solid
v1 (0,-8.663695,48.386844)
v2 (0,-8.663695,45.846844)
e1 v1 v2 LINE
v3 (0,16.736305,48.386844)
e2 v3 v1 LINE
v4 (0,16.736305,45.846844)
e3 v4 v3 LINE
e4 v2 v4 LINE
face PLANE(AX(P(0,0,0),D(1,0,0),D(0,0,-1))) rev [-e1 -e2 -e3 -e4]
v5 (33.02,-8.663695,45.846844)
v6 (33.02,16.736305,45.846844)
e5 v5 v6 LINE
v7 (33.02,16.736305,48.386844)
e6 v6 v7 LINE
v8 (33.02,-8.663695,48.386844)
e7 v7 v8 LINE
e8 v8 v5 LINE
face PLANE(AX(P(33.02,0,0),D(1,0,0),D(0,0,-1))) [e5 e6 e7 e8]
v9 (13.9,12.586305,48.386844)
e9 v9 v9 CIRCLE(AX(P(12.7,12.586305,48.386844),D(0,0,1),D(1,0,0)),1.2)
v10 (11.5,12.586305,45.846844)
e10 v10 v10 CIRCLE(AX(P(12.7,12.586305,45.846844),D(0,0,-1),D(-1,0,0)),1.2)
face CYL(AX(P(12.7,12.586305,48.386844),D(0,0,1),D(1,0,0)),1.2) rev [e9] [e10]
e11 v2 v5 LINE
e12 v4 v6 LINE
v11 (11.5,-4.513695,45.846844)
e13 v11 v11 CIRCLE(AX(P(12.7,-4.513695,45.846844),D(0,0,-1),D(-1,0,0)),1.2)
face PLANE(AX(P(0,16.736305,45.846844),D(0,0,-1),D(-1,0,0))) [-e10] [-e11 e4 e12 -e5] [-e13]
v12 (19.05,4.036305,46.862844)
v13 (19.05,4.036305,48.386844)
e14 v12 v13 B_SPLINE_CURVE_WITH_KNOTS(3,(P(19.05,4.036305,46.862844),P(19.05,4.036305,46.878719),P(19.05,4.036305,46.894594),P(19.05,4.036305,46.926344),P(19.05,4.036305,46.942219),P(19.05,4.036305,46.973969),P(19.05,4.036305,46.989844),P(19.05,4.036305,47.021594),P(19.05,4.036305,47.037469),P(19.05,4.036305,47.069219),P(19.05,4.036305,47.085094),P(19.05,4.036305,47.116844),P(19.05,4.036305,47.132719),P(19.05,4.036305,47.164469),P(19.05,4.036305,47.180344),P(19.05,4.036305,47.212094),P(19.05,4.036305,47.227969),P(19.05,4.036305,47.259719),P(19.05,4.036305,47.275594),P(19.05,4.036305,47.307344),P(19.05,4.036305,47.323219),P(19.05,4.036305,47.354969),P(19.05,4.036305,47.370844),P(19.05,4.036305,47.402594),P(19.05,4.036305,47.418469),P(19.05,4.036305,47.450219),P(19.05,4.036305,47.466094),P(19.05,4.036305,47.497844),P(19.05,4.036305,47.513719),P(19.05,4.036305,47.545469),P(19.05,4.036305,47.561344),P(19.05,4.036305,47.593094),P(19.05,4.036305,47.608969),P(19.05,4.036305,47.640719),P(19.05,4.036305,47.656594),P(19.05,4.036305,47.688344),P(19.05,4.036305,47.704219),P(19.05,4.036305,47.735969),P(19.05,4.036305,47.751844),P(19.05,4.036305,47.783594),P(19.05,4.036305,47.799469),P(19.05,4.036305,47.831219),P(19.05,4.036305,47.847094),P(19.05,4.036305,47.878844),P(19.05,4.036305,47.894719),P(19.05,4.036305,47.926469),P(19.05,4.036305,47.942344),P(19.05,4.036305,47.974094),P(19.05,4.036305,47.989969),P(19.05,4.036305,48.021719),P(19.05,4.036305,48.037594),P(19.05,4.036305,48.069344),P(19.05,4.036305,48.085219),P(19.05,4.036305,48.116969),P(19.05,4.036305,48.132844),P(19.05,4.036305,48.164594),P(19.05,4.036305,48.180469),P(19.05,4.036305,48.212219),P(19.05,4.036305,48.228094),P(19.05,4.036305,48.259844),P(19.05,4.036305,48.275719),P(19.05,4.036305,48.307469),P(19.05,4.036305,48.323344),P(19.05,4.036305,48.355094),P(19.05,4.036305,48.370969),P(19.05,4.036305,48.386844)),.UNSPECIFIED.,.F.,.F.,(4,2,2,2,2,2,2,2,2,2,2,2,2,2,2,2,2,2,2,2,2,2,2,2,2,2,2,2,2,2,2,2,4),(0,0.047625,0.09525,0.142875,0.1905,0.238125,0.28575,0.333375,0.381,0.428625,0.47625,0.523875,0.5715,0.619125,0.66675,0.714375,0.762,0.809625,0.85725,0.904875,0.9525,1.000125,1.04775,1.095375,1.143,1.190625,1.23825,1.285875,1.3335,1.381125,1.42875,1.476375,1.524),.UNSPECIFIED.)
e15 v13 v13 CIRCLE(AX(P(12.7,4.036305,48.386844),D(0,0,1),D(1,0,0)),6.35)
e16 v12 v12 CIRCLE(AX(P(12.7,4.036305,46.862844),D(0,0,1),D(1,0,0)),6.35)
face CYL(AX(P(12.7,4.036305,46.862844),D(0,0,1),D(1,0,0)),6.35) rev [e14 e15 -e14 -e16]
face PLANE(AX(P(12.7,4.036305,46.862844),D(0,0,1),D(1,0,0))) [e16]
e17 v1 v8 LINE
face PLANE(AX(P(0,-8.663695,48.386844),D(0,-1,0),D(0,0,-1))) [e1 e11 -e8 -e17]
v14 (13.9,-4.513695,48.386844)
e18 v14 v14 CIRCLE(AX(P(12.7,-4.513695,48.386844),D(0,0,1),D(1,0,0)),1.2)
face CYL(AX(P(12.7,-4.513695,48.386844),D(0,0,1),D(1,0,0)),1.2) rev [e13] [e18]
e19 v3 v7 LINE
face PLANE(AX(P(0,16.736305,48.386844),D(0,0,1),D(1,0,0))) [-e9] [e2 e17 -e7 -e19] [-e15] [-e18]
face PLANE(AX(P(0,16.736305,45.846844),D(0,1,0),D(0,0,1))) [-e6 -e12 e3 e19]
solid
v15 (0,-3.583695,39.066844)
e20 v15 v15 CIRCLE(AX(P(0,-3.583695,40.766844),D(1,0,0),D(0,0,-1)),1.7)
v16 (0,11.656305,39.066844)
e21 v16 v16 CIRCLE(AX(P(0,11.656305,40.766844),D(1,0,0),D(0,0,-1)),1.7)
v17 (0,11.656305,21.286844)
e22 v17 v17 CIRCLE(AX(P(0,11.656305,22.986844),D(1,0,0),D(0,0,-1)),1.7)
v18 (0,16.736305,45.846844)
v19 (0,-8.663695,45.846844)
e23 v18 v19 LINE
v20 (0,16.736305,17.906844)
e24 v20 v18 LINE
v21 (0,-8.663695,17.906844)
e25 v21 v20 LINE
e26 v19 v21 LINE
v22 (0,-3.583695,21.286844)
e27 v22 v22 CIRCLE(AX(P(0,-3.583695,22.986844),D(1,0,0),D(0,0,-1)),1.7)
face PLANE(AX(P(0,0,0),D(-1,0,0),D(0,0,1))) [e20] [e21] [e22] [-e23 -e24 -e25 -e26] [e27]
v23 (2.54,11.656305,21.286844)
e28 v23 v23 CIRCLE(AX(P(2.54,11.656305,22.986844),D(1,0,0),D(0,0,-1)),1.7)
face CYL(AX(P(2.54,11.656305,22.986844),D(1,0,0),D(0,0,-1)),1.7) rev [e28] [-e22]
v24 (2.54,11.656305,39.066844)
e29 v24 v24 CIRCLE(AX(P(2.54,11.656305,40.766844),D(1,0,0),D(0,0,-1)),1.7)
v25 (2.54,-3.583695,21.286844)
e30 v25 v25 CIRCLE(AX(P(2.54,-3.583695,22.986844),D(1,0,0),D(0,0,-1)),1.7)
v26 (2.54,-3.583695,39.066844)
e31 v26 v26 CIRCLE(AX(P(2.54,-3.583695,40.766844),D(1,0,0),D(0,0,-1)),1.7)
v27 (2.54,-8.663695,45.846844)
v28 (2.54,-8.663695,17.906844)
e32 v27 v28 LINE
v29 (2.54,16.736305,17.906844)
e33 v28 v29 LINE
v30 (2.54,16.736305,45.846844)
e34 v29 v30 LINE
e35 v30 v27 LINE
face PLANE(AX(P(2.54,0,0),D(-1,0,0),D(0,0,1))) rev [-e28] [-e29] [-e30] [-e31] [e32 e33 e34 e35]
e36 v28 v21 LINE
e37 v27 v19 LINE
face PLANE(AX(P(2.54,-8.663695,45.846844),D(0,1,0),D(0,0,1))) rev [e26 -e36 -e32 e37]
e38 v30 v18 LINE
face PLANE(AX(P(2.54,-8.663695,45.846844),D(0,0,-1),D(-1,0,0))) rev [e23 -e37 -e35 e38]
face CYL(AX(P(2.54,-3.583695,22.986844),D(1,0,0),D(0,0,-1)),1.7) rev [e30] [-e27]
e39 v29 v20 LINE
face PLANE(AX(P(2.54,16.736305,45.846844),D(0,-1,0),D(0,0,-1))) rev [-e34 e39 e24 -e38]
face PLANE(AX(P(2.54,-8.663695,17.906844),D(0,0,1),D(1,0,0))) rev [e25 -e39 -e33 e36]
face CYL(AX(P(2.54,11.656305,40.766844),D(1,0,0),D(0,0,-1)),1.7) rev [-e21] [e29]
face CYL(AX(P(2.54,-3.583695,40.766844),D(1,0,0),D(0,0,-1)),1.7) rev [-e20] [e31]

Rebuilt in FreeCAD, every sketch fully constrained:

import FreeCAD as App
import Part
import Sketcher
from FreeCAD import Vector
Q = App.Units.Quantity

doc = App.newDocument("Part")
body = doc.addObject("PartDesign::Body", "Body")

# Sketch on YZ plane
sketch1 = body.newObject("Sketcher::SketchObject", "Sketch")
sketch1.AttachmentSupport = (doc.getObject("YZ_Plane"), [""])
sketch1.MapMode = "FlatFace"
sketch1.addGeometry([
    Part.LineSegment(Vector(17, 46, 0), Vector(-9, 46, 0)),
    Part.LineSegment(Vector(-9, 46, 0), Vector(-9, 18, 0)),
    Part.LineSegment(Vector(-9, 18, 0), Vector(17, 18, 0)),
    Part.LineSegment(Vector(17, 18, 0), Vector(17, 46, 0)),
], False)
sketch1.addConstraint([
    Sketcher.Constraint("Coincident", 0, 2, 1, 1),
    Sketcher.Constraint("Coincident", 1, 2, 2, 1),
    Sketcher.Constraint("Coincident", 2, 2, 3, 1),
    Sketcher.Constraint("Coincident", 3, 2, 0, 1),
    Sketcher.Constraint("Horizontal", 0),
    Sketcher.Constraint("Vertical", 1),
    Sketcher.Constraint("Horizontal", 2),
    Sketcher.Constraint("Vertical", 3),
    Sketcher.Constraint("DistanceX", 0, 2, 0, 1, Q("1 in")),
    Sketcher.Constraint("DistanceY", 1, 2, 1, 1, Q("1.1 in")),
    Sketcher.Constraint("DistanceX", 0, 2, -1, 1, Q("8.663695 mm")),
    Sketcher.Constraint("DistanceY", -1, 1, 0, 2, Q("45.846844 mm")),
])
pad1 = body.newObject("PartDesign::Pad", "Pad")
pad1.Profile = sketch1
pad1.Length = Q("0.1 in")

# Sketch on YZ plane
sketch2 = body.newObject("Sketcher::SketchObject", "Sketch001")
sketch2.AttachmentSupport = (doc.getObject("YZ_Plane"), [""])
sketch2.MapMode = "FlatFace"
sketch2.AttachmentOffset = App.Placement(Vector(0, 0, 0.1 * 25.4), App.Rotation())
sketch2.addGeometry([
    Part.Circle(Vector(11.7, 40.8, 0), Vector(0, 0, 1), 1.7),
    Part.Circle(Vector(11.7, 23, 0), Vector(0, 0, 1), 1.7),
    Part.Circle(Vector(-3.6, 23, 0), Vector(0, 0, 1), 1.7),
    Part.Circle(Vector(-3.6, 40.8, 0), Vector(0, 0, 1), 1.7),
], False)
sketch2.addConstraint([
    Sketcher.Constraint("Equal", 0, 1),
    Sketcher.Constraint("Equal", 1, 2),
    Sketcher.Constraint("Equal", 2, 3),
    Sketcher.Constraint("Horizontal", 1, 3, 2, 3),
    Sketcher.Constraint("Horizontal", 0, 3, 3, 3),
    Sketcher.Constraint("Vertical", 0, 3, 1, 3),
    Sketcher.Constraint("Vertical", 2, 3, 3, 3),
    Sketcher.Constraint("DistanceY", 1, 3, 0, 3, Q("0.7 in")),
    Sketcher.Constraint("DistanceX", 2, 3, 1, 3, Q("0.6 in")),
    Sketcher.Constraint("Diameter", 0, Q("3.4 mm")),
    Sketcher.Constraint("DistanceX", -1, 1, 0, 3, Q("11.656305 mm")),
    Sketcher.Constraint("DistanceY", -1, 1, 0, 3, Q("40.766844 mm")),
])
doc.recompute()
hole = body.newObject("PartDesign::Hole", "Hole")
hole.Profile = sketch2
hole.ThreadType = "None"
hole.Diameter = 3.4
hole.DepthType = "ThroughAll"
body2 = doc.addObject("PartDesign::Body", "Body001")

# Sketch on YZ plane
sketch3 = body2.newObject("Sketcher::SketchObject", "Sketch002")
sketch3.AttachmentSupport = (doc.getObject("YZ_Plane001"), [""])
sketch3.MapMode = "FlatFace"
sketch3.AttachmentOffset = App.Placement(Vector(0, 0, 0.1 * 25.4), App.Rotation())
sketch3.addGeometry([
    Part.LineSegment(Vector(16.7, 48.4, 0), Vector(-8.7, 48.4, 0)),
    Part.LineSegment(Vector(-8.7, 48.4, 0), Vector(-8.7, 45.8, 0)),
    Part.LineSegment(Vector(-8.7, 45.8, 0), Vector(16.7, 45.8, 0)),
    Part.LineSegment(Vector(16.7, 45.8, 0), Vector(16.7, 48.4, 0)),
], False)
sketch3.addConstraint([
    Sketcher.Constraint("Coincident", 0, 2, 1, 1),
    Sketcher.Constraint("Coincident", 1, 2, 2, 1),
    Sketcher.Constraint("Coincident", 2, 2, 3, 1),
    Sketcher.Constraint("Coincident", 3, 2, 0, 1),
    Sketcher.Constraint("Horizontal", 0),
    Sketcher.Constraint("Vertical", 1),
    Sketcher.Constraint("Horizontal", 2),
    Sketcher.Constraint("Vertical", 3),
    Sketcher.Constraint("DistanceX", 0, 2, 0, 1, Q("1 in")),
    Sketcher.Constraint("DistanceY", 1, 2, 1, 1, Q("0.1 in")),
    Sketcher.Constraint("DistanceX", 0, 2, -1, 1, Q("8.663695 mm")),
    Sketcher.Constraint("DistanceY", -1, 1, 0, 2, Q("48.386844 mm")),
])
pad2 = body2.newObject("PartDesign::Pad", "Pad001")
pad2.Profile = sketch3
pad2.Type = "TwoLengths"
pad2.Length = Q("1.2 in")
pad2.Length2 = Q("0.1 in")

# Sketch on YZ plane
sketch4 = body2.newObject("Sketcher::SketchObject", "Sketch003")
sketch4.AttachmentSupport = (doc.getObject("YZ_Plane001"), [""])
sketch4.MapMode = "FlatFace"
sketch4.AttachmentOffset = App.Placement(Vector(0, 0, 0.5 * 25.4), App.Rotation())
sketch4.addGeometry([
    Part.LineSegment(Vector(12.6, 17.9, 0), Vector(12.6, 48.4, 0)),
    Part.LineSegment(Vector(12.6, 48.4, 0), Vector(11.4, 48.4, 0)),
    Part.LineSegment(Vector(11.4, 48.4, 0), Vector(11.4, 17.9, 0)),
    Part.LineSegment(Vector(11.4, 17.9, 0), Vector(12.6, 17.9, 0)),
], False)
sketch4.addGeometry(Part.LineSegment(Vector(12.6, 48.4, 0), Vector(12.6, 17.9, 0)), True)  # axis
sketch4.addConstraint([
    Sketcher.Constraint("Coincident", 0, 2, 1, 1),
    Sketcher.Constraint("Coincident", 1, 2, 2, 1),
    Sketcher.Constraint("Coincident", 2, 2, 3, 1),
    Sketcher.Constraint("Coincident", 3, 2, 0, 1),
    Sketcher.Constraint("Vertical", 0),
    Sketcher.Constraint("Horizontal", 1),
    Sketcher.Constraint("Vertical", 2),
    Sketcher.Constraint("Horizontal", 3),
    Sketcher.Constraint("Vertical", 4),
    Sketcher.Constraint("Coincident", 4, 1, 0, 2),
    Sketcher.Constraint("Horizontal", 2, 2, 4, 2),
    Sketcher.Constraint("DistanceY", 0, 1, 0, 2, Q("1.2 in")),
    Sketcher.Constraint("DistanceX", 1, 2, 1, 1, Q("1.2 mm")),
    Sketcher.Constraint("DistanceX", -1, 1, 0, 2, Q("12.586305 mm")),
    Sketcher.Constraint("DistanceY", -1, 1, 0, 2, Q("48.386844 mm")),
])
groove = body2.newObject("PartDesign::Groove", "Groove")
groove.Profile = sketch4
groove.ReferenceAxis = (sketch4, ["Axis0"])
groove.Angle = 360
doc.recompute()

linearpattern = body2.newObject("PartDesign::LinearPattern", "LinearPattern")
linearpattern.Originals = [groove]
linearpattern.Direction = (doc.getObject("Y_Axis001"), [""])
linearpattern.Mode = "offset"
linearpattern.Offset = 17.1
linearpattern.Occurrences = 2
linearpattern.Reversed = True
body2.Tip = linearpattern

# Sketch on XY plane
sketch5 = body2.newObject("Sketcher::SketchObject", "Sketch004")
sketch5.AttachmentSupport = (doc.getObject("XY_Plane001"), [""])
sketch5.MapMode = "FlatFace"
sketch5.AttachmentOffset = App.Placement(Vector(0, 0, 48.386844), App.Rotation())
sketch5.addGeometry(Part.Circle(Vector(13, 4, 0), Vector(0, 0, 1), 6), False)
sketch5.addConstraint([
    Sketcher.Constraint("Diameter", 0, Q("0.5 in")),
    Sketcher.Constraint("DistanceX", -1, 1, 0, 3, Q("0.5 in")),
    Sketcher.Constraint("DistanceY", -1, 1, 0, 3, Q("4.036305 mm")),
])
pocket1 = body2.newObject("PartDesign::Pocket", "Pocket")
pocket1.Profile = sketch5
pocket1.Length = Q("0.06 in")

doc.recompute()
